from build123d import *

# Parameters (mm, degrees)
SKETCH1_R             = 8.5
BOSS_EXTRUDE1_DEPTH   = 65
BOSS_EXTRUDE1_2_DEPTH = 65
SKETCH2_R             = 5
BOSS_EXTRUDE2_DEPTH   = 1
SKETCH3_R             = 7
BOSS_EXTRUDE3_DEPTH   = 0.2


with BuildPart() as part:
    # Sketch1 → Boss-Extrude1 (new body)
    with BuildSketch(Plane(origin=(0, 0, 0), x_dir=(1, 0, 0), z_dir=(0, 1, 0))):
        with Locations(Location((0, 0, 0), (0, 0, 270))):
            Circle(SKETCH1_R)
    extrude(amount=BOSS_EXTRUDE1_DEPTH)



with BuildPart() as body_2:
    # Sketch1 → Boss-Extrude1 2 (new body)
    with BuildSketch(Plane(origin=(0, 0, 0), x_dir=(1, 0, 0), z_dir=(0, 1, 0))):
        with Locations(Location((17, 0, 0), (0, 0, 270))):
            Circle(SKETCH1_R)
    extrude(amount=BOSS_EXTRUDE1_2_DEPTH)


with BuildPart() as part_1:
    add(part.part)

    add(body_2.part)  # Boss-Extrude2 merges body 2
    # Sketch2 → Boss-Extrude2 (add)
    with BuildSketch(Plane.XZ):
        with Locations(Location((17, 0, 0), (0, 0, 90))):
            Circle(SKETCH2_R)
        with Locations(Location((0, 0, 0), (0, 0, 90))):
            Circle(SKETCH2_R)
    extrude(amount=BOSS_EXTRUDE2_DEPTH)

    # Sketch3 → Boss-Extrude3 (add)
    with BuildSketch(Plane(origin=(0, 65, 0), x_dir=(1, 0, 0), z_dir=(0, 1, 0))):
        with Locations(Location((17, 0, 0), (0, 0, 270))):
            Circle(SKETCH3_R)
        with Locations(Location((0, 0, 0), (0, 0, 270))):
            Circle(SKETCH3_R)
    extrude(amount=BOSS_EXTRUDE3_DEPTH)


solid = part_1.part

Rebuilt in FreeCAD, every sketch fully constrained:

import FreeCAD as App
import Part
import Sketcher
from FreeCAD import Vector
Q = App.Units.Quantity

doc = App.newDocument("Part")
params = doc.addObject("Spreadsheet::Sheet", "Params")
for row, (alias, value) in enumerate([
    ("sketch1_diameter", "17 mm"),
    ("pad1_length", "65 mm"),
    ("sketch2_diameter", "17 mm"),
    ("pad2_length", "65 mm"),
    ("sketch3_diameter", "10 mm"),
    ("pad3_length", "1 mm"),
    ("sketch4_diameter", "14 mm"),
    ("pad4_length", "0.2 mm"),
], start=1):
    params.set(f"A{row}", alias)
    params.set(f"B{row}", "=" + value)
    params.setAlias(f"B{row}", alias)

body = doc.addObject("PartDesign::Body", "Body")

# Sketch on XZ plane
sketch1 = doc.addObject("Sketcher::SketchObject", "Sketch")
body.addObject(sketch1)
sketch1.AttachmentSupport = (doc.XZ_Plane, [""])
sketch1.MapMode = "FlatFace"
sketch1.addGeometry(Part.Circle(Vector(0, 0, 0), Vector(0, 0, 1), 8.5), False)
sketch1.addConstraint(Sketcher.Constraint("Coincident", 0, 3, -1, 1))
sketch1.addConstraint(Sketcher.Constraint("Diameter", 0, Q("17 mm")))
sketch1.setExpression("Constraints[1]", "Params.sketch1_diameter")
pad1 = doc.addObject("PartDesign::Pad", "Pad")
body.addObject(pad1)
pad1.Profile = sketch1
pad1.setExpression("Length", "Params.pad1_length")
pad1.Reversed = True
body2 = doc.addObject("PartDesign::Body", "Body001")

# Sketch on XZ plane
sketch2 = doc.addObject("Sketcher::SketchObject", "Sketch001")
body2.addObject(sketch2)
sketch2.AttachmentSupport = (doc.getObject("XZ_Plane001"), [""])
sketch2.MapMode = "FlatFace"
sketch2.addGeometry(Part.Circle(Vector(17, 0, 0), Vector(0, 0, 1), 8.5), False)
sketch2.addConstraint(Sketcher.Constraint("PointOnObject", 0, 3, -1))
sketch2.addConstraint(Sketcher.Constraint("Diameter", 0, Q("17 mm")))
sketch2.addConstraint(Sketcher.Constraint("DistanceX", -1, 1, 0, 3, Q("17 mm")))
sketch2.setExpression("Constraints[1]", "Params.sketch2_diameter")
pad2 = doc.addObject("PartDesign::Pad", "Pad001")
body2.addObject(pad2)
pad2.Profile = sketch2
pad2.setExpression("Length", "Params.pad2_length")
pad2.Reversed = True
body.AllowCompound = True
doc.recompute()

boolean = doc.addObject("PartDesign::Boolean", "Boolean")
body.addObject(boolean)
boolean.Type = "Fuse"
boolean.addObjects([body2])

# Sketch on XZ plane
sketch3 = doc.addObject("Sketcher::SketchObject", "Sketch002")
body.addObject(sketch3)
sketch3.AttachmentSupport = (doc.XZ_Plane, [""])
sketch3.MapMode = "FlatFace"
sketch3.addGeometry(Part.Circle(Vector(17, 0, 0), Vector(0, 0, 1), 5), False)
sketch3.addGeometry(Part.Circle(Vector(0, 0, 0), Vector(0, 0, 1), 5), False)
sketch3.addConstraint(Sketcher.Constraint("Coincident", 1, 3, -1, 1))
sketch3.addConstraint(Sketcher.Constraint("Equal", 0, 1))
sketch3.addConstraint(Sketcher.Constraint("PointOnObject", 0, 3, -1))
sketch3.addConstraint(Sketcher.Constraint("Diameter", 0, Q("10 mm")))
sketch3.addConstraint(Sketcher.Constraint("DistanceX", -1, 1, 0, 3, Q("17 mm")))
sketch3.setExpression("Constraints[3]", "Params.sketch3_diameter")
pad3 = doc.addObject("PartDesign::Pad", "Pad002")
body.addObject(pad3)
pad3.Profile = sketch3
pad3.setExpression("Length", "Params.pad3_length")

# Sketch on XZ plane
sketch4 = doc.addObject("Sketcher::SketchObject", "Sketch003")
body.addObject(sketch4)
sketch4.AttachmentSupport = (doc.XZ_Plane, [""])
sketch4.MapMode = "FlatFace"
sketch4.AttachmentOffset = App.Placement(Vector(0, 0, -65), App.Rotation())
sketch4.addGeometry(Part.Circle(Vector(17, 0, 0), Vector(0, 0, 1), 7), False)
sketch4.addGeometry(Part.Circle(Vector(0, 0, 0), Vector(0, 0, 1), 7), False)
sketch4.addConstraint(Sketcher.Constraint("Coincident", 1, 3, -1, 1))
sketch4.addConstraint(Sketcher.Constraint("Equal", 0, 1))
sketch4.addConstraint(Sketcher.Constraint("PointOnObject", 0, 3, -1))
sketch4.addConstraint(Sketcher.Constraint("Diameter", 0, Q("14 mm")))
sketch4.addConstraint(Sketcher.Constraint("DistanceX", -1, 1, 0, 3, Q("17 mm")))
sketch4.setExpression("Constraints[3]", "Params.sketch4_diameter")
pad4 = doc.addObject("PartDesign::Pad", "Pad003")
body.addObject(pad4)
pad4.Profile = sketch4
pad4.setExpression("Length", "Params.pad4_length")
pad4.Reversed = True

doc.recompute()
